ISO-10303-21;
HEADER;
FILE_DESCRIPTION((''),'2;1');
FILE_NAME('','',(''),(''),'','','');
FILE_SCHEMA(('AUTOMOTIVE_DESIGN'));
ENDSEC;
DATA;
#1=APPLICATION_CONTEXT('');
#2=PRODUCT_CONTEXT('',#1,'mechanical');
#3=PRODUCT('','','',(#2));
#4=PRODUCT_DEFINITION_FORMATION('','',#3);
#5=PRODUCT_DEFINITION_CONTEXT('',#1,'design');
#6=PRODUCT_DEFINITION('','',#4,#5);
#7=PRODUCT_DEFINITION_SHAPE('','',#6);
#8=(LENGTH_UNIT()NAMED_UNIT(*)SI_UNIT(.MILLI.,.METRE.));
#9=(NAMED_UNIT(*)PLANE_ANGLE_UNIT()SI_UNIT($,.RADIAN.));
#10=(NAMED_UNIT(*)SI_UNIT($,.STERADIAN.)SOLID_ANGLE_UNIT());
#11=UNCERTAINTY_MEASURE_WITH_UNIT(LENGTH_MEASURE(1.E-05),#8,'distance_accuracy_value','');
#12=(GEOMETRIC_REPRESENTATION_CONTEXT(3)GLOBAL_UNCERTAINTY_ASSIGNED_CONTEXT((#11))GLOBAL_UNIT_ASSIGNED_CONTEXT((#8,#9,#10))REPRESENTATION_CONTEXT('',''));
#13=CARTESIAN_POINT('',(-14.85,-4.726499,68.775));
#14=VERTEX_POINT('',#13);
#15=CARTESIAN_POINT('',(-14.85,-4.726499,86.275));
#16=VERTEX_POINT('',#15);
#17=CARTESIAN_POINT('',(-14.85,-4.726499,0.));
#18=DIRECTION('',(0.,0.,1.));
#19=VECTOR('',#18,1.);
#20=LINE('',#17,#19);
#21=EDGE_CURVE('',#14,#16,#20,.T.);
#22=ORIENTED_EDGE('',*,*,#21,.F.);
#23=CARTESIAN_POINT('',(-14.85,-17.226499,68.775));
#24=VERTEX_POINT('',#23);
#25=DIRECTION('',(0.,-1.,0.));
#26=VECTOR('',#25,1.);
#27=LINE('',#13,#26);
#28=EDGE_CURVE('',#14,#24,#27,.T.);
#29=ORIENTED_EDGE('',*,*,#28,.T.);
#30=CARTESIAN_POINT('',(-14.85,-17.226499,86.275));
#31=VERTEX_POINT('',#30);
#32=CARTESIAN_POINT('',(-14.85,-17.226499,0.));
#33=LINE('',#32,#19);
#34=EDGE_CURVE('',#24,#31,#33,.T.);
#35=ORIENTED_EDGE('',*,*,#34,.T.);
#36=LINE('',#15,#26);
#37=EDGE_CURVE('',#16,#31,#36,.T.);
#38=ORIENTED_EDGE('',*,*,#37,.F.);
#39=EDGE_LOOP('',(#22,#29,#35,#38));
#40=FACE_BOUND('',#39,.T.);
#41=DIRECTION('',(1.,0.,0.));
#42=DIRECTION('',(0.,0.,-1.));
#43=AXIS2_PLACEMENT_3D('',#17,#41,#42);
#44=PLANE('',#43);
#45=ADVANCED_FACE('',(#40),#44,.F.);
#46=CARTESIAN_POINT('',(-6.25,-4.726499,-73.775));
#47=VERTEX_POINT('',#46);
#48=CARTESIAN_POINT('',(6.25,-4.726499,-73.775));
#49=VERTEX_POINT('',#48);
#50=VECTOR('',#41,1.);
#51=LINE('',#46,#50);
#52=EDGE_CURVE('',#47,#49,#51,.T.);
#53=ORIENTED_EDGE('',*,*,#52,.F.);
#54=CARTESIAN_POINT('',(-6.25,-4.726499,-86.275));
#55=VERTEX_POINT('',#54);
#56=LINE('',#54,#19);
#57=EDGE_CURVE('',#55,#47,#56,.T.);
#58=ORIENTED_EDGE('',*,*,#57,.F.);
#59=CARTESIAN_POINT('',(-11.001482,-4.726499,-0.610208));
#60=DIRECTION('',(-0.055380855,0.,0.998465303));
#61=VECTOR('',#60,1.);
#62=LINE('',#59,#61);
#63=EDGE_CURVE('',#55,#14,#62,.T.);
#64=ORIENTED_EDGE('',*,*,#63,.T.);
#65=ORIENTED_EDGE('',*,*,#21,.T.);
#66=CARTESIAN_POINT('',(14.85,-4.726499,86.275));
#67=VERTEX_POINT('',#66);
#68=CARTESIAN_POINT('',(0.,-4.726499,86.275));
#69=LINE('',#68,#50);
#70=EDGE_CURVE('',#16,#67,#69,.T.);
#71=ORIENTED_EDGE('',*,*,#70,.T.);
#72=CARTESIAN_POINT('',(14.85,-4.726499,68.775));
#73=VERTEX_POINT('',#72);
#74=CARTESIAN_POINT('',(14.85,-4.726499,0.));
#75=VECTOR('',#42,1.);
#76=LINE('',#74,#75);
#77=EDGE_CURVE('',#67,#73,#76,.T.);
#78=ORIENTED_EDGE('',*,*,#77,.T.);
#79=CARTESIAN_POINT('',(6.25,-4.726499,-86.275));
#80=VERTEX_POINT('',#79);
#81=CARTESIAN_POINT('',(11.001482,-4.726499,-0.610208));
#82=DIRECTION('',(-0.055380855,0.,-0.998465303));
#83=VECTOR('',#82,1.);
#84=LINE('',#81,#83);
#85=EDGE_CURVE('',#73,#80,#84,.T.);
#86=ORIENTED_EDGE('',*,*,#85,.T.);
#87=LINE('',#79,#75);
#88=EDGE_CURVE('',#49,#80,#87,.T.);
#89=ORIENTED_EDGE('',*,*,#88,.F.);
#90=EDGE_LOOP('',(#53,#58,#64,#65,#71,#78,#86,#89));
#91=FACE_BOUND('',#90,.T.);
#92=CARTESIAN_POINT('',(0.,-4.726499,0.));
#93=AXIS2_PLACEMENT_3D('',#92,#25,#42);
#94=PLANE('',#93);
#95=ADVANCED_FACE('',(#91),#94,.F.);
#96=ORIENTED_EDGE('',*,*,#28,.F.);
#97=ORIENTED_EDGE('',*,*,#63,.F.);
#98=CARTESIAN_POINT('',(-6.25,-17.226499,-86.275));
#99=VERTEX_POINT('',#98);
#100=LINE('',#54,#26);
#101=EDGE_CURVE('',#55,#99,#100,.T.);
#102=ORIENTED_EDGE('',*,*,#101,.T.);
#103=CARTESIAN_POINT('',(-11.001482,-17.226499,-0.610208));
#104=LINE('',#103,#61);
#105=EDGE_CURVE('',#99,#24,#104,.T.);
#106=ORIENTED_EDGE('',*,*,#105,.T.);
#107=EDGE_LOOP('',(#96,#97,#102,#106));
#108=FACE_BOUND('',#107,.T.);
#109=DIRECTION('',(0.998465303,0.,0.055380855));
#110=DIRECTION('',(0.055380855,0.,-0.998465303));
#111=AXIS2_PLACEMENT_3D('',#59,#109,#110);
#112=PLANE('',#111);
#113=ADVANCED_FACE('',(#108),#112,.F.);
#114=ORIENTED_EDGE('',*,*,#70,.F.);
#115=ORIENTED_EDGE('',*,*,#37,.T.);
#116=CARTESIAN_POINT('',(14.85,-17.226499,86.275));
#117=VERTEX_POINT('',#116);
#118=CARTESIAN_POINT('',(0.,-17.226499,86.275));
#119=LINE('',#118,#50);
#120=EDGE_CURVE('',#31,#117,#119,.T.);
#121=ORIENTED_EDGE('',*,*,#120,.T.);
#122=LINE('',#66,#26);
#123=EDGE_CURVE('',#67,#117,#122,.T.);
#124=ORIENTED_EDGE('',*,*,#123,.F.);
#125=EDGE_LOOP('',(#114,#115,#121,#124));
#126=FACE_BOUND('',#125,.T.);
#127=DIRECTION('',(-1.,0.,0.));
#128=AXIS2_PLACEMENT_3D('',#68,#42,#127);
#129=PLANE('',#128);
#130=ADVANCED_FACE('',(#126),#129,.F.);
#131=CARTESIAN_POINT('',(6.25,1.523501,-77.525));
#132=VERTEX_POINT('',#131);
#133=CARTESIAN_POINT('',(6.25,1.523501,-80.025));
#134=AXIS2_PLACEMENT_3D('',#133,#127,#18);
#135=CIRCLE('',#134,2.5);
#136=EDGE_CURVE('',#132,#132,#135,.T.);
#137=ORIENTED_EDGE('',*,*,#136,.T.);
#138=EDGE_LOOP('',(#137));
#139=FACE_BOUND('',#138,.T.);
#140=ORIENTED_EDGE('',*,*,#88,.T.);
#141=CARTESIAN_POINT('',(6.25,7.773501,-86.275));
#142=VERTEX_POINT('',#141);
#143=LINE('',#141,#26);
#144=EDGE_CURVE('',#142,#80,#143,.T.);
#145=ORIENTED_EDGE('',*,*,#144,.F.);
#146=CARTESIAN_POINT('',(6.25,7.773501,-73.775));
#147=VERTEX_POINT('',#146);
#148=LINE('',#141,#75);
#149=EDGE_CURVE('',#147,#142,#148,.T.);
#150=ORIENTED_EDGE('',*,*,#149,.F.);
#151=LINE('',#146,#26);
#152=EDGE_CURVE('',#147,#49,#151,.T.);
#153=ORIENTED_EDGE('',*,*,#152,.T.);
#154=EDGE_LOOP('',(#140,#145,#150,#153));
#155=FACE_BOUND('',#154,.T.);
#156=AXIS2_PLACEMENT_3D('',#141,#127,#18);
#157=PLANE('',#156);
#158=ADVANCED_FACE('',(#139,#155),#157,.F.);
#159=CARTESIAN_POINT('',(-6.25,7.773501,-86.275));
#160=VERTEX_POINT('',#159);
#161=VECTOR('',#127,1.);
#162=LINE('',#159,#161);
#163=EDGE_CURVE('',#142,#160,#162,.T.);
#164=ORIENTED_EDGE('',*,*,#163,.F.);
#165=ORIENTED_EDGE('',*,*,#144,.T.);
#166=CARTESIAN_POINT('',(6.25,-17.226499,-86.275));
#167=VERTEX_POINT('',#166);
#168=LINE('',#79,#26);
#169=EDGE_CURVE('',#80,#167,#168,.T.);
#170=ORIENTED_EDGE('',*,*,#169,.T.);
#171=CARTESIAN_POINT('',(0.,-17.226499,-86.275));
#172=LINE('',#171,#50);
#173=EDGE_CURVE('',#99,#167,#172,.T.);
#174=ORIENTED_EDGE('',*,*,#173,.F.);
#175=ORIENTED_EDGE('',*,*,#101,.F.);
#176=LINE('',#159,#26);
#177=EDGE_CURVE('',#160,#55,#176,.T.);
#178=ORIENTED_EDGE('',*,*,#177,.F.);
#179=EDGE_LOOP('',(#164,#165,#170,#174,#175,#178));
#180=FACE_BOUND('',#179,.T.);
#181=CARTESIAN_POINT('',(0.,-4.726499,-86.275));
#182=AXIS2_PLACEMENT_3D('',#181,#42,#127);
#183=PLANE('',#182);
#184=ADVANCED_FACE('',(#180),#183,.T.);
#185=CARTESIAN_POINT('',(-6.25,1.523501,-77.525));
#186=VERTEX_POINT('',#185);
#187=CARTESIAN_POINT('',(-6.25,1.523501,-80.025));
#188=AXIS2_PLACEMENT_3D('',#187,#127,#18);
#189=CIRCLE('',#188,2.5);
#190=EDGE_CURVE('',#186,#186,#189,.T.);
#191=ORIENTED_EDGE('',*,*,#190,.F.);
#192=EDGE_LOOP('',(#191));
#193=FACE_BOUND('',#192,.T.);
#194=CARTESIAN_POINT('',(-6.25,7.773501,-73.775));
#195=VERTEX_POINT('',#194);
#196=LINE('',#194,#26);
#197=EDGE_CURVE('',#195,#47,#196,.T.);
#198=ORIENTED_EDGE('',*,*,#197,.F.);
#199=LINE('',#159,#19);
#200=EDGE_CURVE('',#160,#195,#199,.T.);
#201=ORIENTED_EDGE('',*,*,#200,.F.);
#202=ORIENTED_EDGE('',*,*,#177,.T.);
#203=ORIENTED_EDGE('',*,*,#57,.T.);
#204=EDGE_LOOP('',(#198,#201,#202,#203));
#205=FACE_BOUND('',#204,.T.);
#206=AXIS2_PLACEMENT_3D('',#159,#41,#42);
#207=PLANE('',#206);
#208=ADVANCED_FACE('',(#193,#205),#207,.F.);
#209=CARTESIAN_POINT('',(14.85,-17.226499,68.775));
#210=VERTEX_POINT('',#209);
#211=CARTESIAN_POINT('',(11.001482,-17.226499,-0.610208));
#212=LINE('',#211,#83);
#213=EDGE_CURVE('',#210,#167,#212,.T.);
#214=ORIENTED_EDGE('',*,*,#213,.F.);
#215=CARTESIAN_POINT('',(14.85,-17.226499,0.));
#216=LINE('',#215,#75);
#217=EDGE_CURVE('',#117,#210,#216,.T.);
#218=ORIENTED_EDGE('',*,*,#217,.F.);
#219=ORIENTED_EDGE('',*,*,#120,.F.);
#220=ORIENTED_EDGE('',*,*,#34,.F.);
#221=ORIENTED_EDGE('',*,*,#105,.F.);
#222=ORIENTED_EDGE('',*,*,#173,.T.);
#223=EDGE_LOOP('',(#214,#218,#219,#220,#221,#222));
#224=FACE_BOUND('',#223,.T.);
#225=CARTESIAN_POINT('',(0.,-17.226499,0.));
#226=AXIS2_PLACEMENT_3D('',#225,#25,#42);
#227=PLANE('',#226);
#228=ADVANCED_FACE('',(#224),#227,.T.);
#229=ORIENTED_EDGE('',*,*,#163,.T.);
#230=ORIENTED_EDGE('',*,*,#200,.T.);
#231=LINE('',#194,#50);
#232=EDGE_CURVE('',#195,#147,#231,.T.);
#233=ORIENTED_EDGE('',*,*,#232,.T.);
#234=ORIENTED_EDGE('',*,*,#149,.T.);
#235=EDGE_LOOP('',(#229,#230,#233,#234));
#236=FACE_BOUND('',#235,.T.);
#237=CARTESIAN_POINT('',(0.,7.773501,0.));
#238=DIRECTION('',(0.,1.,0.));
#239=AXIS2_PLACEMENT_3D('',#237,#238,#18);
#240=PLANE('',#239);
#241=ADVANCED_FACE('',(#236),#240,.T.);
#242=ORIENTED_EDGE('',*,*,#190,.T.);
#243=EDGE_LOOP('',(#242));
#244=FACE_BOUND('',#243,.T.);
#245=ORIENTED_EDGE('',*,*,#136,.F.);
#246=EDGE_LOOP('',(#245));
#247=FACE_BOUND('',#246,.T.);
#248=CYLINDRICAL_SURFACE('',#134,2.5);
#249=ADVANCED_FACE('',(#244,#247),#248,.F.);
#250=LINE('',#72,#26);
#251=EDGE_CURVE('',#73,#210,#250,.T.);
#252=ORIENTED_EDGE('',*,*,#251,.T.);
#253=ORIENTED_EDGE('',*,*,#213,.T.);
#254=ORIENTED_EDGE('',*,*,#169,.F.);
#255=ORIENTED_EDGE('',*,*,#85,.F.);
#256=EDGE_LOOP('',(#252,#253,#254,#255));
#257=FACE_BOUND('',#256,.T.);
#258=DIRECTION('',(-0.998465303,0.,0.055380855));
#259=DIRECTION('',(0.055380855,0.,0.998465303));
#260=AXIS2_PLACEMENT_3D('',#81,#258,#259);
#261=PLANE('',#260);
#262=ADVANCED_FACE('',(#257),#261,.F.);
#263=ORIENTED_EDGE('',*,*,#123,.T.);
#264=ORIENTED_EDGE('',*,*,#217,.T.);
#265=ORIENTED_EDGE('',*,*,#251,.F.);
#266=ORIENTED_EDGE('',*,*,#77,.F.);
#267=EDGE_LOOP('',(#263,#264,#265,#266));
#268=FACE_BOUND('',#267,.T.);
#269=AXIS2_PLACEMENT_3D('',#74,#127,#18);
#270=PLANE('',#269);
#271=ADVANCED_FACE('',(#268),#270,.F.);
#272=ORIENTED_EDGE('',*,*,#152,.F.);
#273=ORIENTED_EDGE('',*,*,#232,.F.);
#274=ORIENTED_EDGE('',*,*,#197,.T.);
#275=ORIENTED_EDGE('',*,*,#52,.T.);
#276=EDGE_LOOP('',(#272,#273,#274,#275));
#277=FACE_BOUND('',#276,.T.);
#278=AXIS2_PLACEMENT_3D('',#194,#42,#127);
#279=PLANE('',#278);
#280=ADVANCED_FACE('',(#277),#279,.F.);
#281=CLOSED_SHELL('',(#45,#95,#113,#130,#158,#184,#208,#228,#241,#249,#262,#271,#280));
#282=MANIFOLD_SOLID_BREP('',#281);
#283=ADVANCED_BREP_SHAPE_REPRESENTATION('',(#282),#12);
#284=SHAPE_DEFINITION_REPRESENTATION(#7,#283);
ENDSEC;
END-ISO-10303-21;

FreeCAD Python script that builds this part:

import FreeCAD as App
import Part
import Sketcher
from FreeCAD import Vector
Q = App.Units.Quantity


def add_polygon(sketch, points):
    """Adds a closed chain of lines whose ends are joined by coincident constraints."""
    first, n = sketch.GeometryCount, len(points)
    for a, b in zip(points, points[1:] + points[:1]):
        sketch.addGeometry(Part.LineSegment(App.Vector(*a, 0), App.Vector(*b, 0)), False)
    for i in range(n):
        sketch.addConstraint(Sketcher.Constraint("Coincident", first + i, 2, first + (i + 1) % n, 1))

doc = App.newDocument("Part")
body = doc.addObject("PartDesign::Body", "Body")

sketch1 = doc.addObject("Sketcher::SketchObject", "Sketch")
body.addObject(sketch1)
sketch1.AttachmentSupport = (doc.XZ_Plane, [""])
sketch1.MapMode = "FlatFace"
add_polygon(sketch1, [(-110, -110), (-110, 110), (110, 110), (110, -110)])
sketch1.addConstraint([
    Sketcher.Constraint("Vertical", 0),
    Sketcher.Constraint("Horizontal", 1),
    Sketcher.Constraint("Vertical", 2),
    Sketcher.Constraint("Horizontal", 3),
    Sketcher.Constraint("Symmetric", 0, 2, 2, 2, -1, 1),
    Sketcher.Constraint("Equal", 3, 0),
    Sketcher.Constraint("DistanceX", 1, 1, 1, 2, Q("220 mm")),
])
pad1 = doc.addObject("PartDesign::Pad", "Pad")
body.addObject(pad1)
pad1.Profile = sketch1
pad1.Length = 10
pad1.Reversed = True

sketch2 = doc.addObject("Sketcher::SketchObject", "Sketch001")
body.addObject(sketch2)
sketch2.AttachmentSupport = (doc.XZ_Plane, [""])
sketch2.MapMode = "FlatFace"
sketch2.AttachmentOffset = App.Placement(Vector(0, 0, -10), App.Rotation())
add_polygon(sketch2, [(0, 110), (-110, -110), (-110, 110)])
add_polygon(sketch2, [(110, -110), (0, 110), (110, 110)])
sketch2.addConstraint([
    Sketcher.Constraint("Vertical", 1),
    Sketcher.Constraint("Horizontal", 2),
    Sketcher.Constraint("Horizontal", 4),
    Sketcher.Constraint("Vertical", 5),
    Sketcher.Constraint("Coincident", 3, 2, 2, 2),
    Sketcher.Constraint("Symmetric", 0, 2, 4, 2, -1, 1),
    Sketcher.Constraint("PointOnObject", 2, 2, -2),
    Sketcher.Constraint("Horizontal", 0, 2, 5, 2),
    Sketcher.Constraint("DistanceX", 2, 1, 2, 2, Q("110 mm")),
    Sketcher.Constraint("DistanceY", 1, 1, 1, 2, Q("220 mm")),
])
pocket1 = doc.addObject("PartDesign::Pocket", "Pocket")
body.addObject(pocket1)
pocket1.Profile = sketch2
pocket1.Length = 10
pocket1.Reversed = True

sketch3 = doc.addObject("Sketcher::SketchObject", "Sketch002")
body.addObject(sketch3)
sketch3.AttachmentSupport = (doc.XZ_Plane, [""])
sketch3.MapMode = "FlatFace"
sketch3.AttachmentOffset = App.Placement(Vector(0, 0, -10), App.Rotation())
add_polygon(sketch3, [(110, -110), (-110, -110), (0, 110)])
sketch3.addConstraint([
    Sketcher.Constraint("Horizontal", 0),
    Sketcher.Constraint("PointOnObject", 1, 2, -2),
    Sketcher.Constraint("Equal", 1, 2),
    Sketcher.Constraint("DistanceX", 0, 2, 0, 1, Q("220 mm")),
    Sketcher.Constraint("DistanceY", 0, 2, -1, 1, Q("110 mm")),
    Sketcher.Constraint("DistanceY", -1, 1, 1, 2, Q("110 mm")),
])
pocket2 = doc.addObject("PartDesign::Pocket", "Pocket001")
body.addObject(pocket2)
pocket2.Profile = sketch3
pocket2.Length = 25
pocket2.Reversed = True
body2 = doc.addObject("PartDesign::Body", "Body001")
body2.AllowCompound = True

sketch4 = doc.addObject("Sketcher::SketchObject", "Sketch003")
body2.addObject(sketch4)
sketch4.AttachmentSupport = (doc.getObject("XZ_Plane001"), [""])
sketch4.MapMode = "FlatFace"
add_polygon(sketch4, [(-225, 225), (-225, -225), (225, -225), (225, 225)])
add_polygon(sketch4, [(200, -200), (-200, -200), (-200, 200), (200, 200)])
sketch4.addConstraint([
    Sketcher.Constraint("Vertical", 0),
    Sketcher.Constraint("Horizontal", 1),
    Sketcher.Constraint("Vertical", 2),
    Sketcher.Constraint("Horizontal", 3),
    Sketcher.Constraint("Horizontal", 4),
    Sketcher.Constraint("Vertical", 5),
    Sketcher.Constraint("Horizontal", 6),
    Sketcher.Constraint("Vertical", 7),
    Sketcher.Constraint("Symmetric", 0, 2, 2, 2, -1, 1),
    Sketcher.Constraint("Symmetric", 4, 2, 6, 2, -1, 1),
    Sketcher.Constraint("Equal", 3, 0),
    Sketcher.Constraint("Equal", 6, 5),
    Sketcher.Constraint("DistanceX", 1, 1, 1, 2, Q("450 mm")),
    Sketcher.Constraint("DistanceX", 4, 2, 4, 1, Q("400 mm")),
])
pad2 = doc.addObject("PartDesign::Pad", "Pad001")
body2.addObject(pad2)
pad2.Profile = sketch4
pad2.Length = 25
pad2.Reversed = True

sketch5 = doc.addObject("Sketcher::SketchObject", "Sketch004")
body2.addObject(sketch5)
sketch5.AttachmentSupport = (doc.getObject("XZ_Plane001"), [""])
sketch5.MapMode = "FlatFace"
sketch5.AttachmentOffset = App.Placement(Vector(0, 0, -25), App.Rotation())
add_polygon(sketch5, [(-225, -200), (225, -200), (225, -225), (-225, -225)])
sketch5.addConstraint([
    Sketcher.Constraint("Horizontal", 0),
    Sketcher.Constraint("Vertical", 1),
    Sketcher.Constraint("Horizontal", 2),
    Sketcher.Constraint("Vertical", 3),
    Sketcher.Constraint("DistanceX", 0, 1, 0, 2, Q("450 mm")),
    Sketcher.Constraint("DistanceY", 1, 2, 1, 1, Q("25 mm")),
    Sketcher.Constraint("DistanceX", -1, 1, 0, 2, Q("225 mm")),
    Sketcher.Constraint("DistanceY", 0, 2, -1, 1, Q("200 mm")),
])
pocket3 = doc.addObject("PartDesign::Pocket", "Pocket002")
body2.addObject(pocket3)
pocket3.Profile = sketch5
pocket3.Length = 25
pocket3.Reversed = True

sketch6 = doc.addObject("Sketcher::SketchObject", "Sketch005")
body2.addObject(sketch6)
sketch6.AttachmentSupport = (doc.getObject("XZ_Plane001"), [""])
sketch6.MapMode = "FlatFace"
sketch6.AttachmentOffset = App.Placement(Vector(0, 0, -25), App.Rotation())
add_polygon(sketch6, [(-225, -200), (-225, -150), (225, -150), (225, -200)])
sketch6.addConstraint([
    Sketcher.Constraint("Vertical", 0),
    Sketcher.Constraint("Horizontal", 1),
    Sketcher.Constraint("Vertical", 2),
    Sketcher.Constraint("Horizontal", 3),
    Sketcher.Constraint("DistanceX", 1, 1, 1, 2, Q("450 mm")),
    Sketcher.Constraint("DistanceY", 0, 1, 0, 2, Q("50 mm")),
    Sketcher.Constraint("DistanceX", 0, 2, -1, 1, Q("225 mm")),
    Sketcher.Constraint("DistanceY", 0, 2, -1, 1, Q("150 mm")),
])
pocket4 = doc.addObject("PartDesign::Pocket", "Pocket003")
body2.addObject(pocket4)
pocket4.Profile = sketch6
pocket4.Length = 25
pocket4.Reversed = True

sketch7 = doc.addObject("Sketcher::SketchObject", "Sketch006")
body2.addObject(sketch7)
sketch7.AttachmentSupport = (doc.getObject("XZ_Plane001"), [""])
sketch7.MapMode = "FlatFace"
sketch7.AttachmentOffset = App.Placement(Vector(0, 0, -25), App.Rotation())
add_polygon(sketch7, [(-225, -150), (-225, -110), (225, -110), (225, -150)])
sketch7.addConstraint([
    Sketcher.Constraint("Vertical", 0),
    Sketcher.Constraint("Horizontal", 1),
    Sketcher.Constraint("Vertical", 2),
    Sketcher.Constraint("Horizontal", 3),
    Sketcher.Constraint("DistanceX", 1, 1, 1, 2, Q("450 mm")),
    Sketcher.Constraint("DistanceY", 0, 1, 0, 2, Q("40 mm")),
    Sketcher.Constraint("DistanceX", 0, 2, -1, 1, Q("225 mm")),
    Sketcher.Constraint("DistanceY", 0, 2, -1, 1, Q("110 mm")),
])
pocket5 = doc.addObject("PartDesign::Pocket", "Pocket004")
body2.addObject(pocket5)
pocket5.Profile = sketch7
pocket5.Length = 25
pocket5.Reversed = True

sketch8 = doc.addObject("Sketcher::SketchObject", "Sketch007")
body2.addObject(sketch8)
sketch8.AttachmentSupport = (doc.getObject("XY_Plane001"), [""])
sketch8.MapMode = "FlatFace"
sketch8.AttachmentOffset = App.Placement(Vector(0, 0, -110), App.Rotation())
add_polygon(sketch8, [(-200, 25), (-200, 0), (-225, 0), (-225, 25)])
add_polygon(sketch8, [(225, 25), (225, 0), (200, 0), (200, 25)])
sketch8.addConstraint([
    Sketcher.Constraint("Vertical", 0),
    Sketcher.Constraint("Horizontal", 1),
    Sketcher.Constraint("Vertical", 2),
    Sketcher.Constraint("Horizontal", 3),
    Sketcher.Constraint("Vertical", 4),
    Sketcher.Constraint("Horizontal", 5),
    Sketcher.Constraint("Vertical", 6),
    Sketcher.Constraint("Horizontal", 7),
    Sketcher.Constraint("Symmetric", 1, 2, 4, 2, -1, 1),
    Sketcher.Constraint("Symmetric", 0, 2, 5, 2, -2),
    Sketcher.Constraint("Horizontal", 3, 2, 6, 2),
    Sketcher.Constraint("Equal", 7, 0),
    Sketcher.Constraint("DistanceX", 1, 2, 1, 1, Q("25 mm")),
    Sketcher.Constraint("DistanceX", 0, 2, -1, 1, Q("200 mm")),
])
pad3 = doc.addObject("PartDesign::Pad", "Pad002")
body2.addObject(pad3)
pad3.Profile = sketch8
pad3.Length = 25
pad3.Reversed = True

sketch9 = doc.addObject("Sketcher::SketchObject", "Sketch008")
body2.addObject(sketch9)
sketch9.AttachmentSupport = (doc.getObject("YZ_Plane001"), [""])
sketch9.MapMode = "FlatFace"
sketch9.AttachmentOffset = App.Placement(Vector(0, 0, -200), App.Rotation())
add_polygon(sketch9, [(25, -110), (0, -110), (0, -135), (25, -135)])
sketch9.addConstraint([
    Sketcher.Constraint("Horizontal", 0),
    Sketcher.Constraint("Vertical", 1),
    Sketcher.Constraint("Horizontal", 2),
    Sketcher.Constraint("Vertical", 3),
    Sketcher.Constraint("PointOnObject", 0, 2, -2),
    Sketcher.Constraint("Equal", 2, 1),
    Sketcher.Constraint("DistanceX", 0, 2, 0, 1, Q("25 mm")),
    Sketcher.Constraint("DistanceY", 0, 2, -1, 1, Q("110 mm")),
])
pad4 = doc.addObject("PartDesign::Pad", "Pad003")
body2.addObject(pad4)
pad4.Profile = sketch9
pad4.Length = 25

sketch10 = doc.addObject("Sketcher::SketchObject", "Sketch009")
body2.addObject(sketch10)
sketch10.AttachmentSupport = (doc.getObject("YZ_Plane001"), [""])
sketch10.MapMode = "FlatFace"
sketch10.AttachmentOffset = App.Placement(Vector(0, 0, 200), App.Rotation())
add_polygon(sketch10, [(25, -135), (0, -135), (0, -110), (25, -110)])
sketch10.addConstraint([
    Sketcher.Constraint("Horizontal", 0),
    Sketcher.Constraint("Vertical", 1),
    Sketcher.Constraint("Horizontal", 2),
    Sketcher.Constraint("Vertical", 3),
    Sketcher.Constraint("PointOnObject", 0, 2, -2),
    Sketcher.Constraint("Equal", 2, 1),
    Sketcher.Constraint("DistanceX", 0, 2, 0, 1, Q("25 mm")),
    Sketcher.Constraint("DistanceY", 0, 2, -1, 1, Q("135 mm")),
])
pad5 = doc.addObject("PartDesign::Pad", "Pad004")
body2.addObject(pad5)
pad5.Profile = sketch10
pad5.Length = 25
pad5.Reversed = True

sketch11 = doc.addObject("Sketcher::SketchObject", "Sketch010")
body2.addObject(sketch11)
sketch11.AttachmentSupport = (doc.getObject("XZ_Plane001"), [""])
sketch11.MapMode = "FlatFace"
sketch11.AttachmentOffset = App.Placement(Vector(0, 0, -25), App.Rotation())
sketch11.addGeometry([
    Part.Circle(Vector(-187.5, -122.5, 0), Vector(0, 0, 1), 5),
    Part.Circle(Vector(187.5, -122.5, 0), Vector(0, 0, 1), 5),
], False)
sketch11.addConstraint([
    Sketcher.Constraint("Equal", 0, 1),
    Sketcher.Constraint("Symmetric", 0, 3, 1, 3, -2),
    Sketcher.Constraint("Diameter", 0, Q("10 mm")),
    Sketcher.Constraint("DistanceX", 0, 3, 1, 3, Q("375 mm")),
    Sketcher.Constraint("DistanceY", 0, 3, -1, 1, Q("122.5 mm")),
])
pocket6 = doc.addObject("PartDesign::Pocket", "Pocket005")
body2.addObject(pocket6)
pocket6.Profile = sketch11
pocket6.Length = 25
pocket6.Reversed = True

sketch12 = doc.addObject("Sketcher::SketchObject", "Sketch011")
body2.addObject(sketch12)
sketch12.AttachmentSupport = (doc.getObject("YZ_Plane001"), [""])
sketch12.MapMode = "FlatFace"
sketch12.AttachmentOffset = App.Placement(Vector(0, 0, -225), App.Rotation())
add_polygon(sketch12, [(-20, 225), (0, 225), (0, -135)])
add_polygon(sketch12, [(25, 225), (45, 225), (25, -135)])
sketch12.addConstraint([
    Sketcher.Constraint("Horizontal", 0),
    Sketcher.Constraint("Vertical", 1),
    Sketcher.Constraint("Horizontal", 3),
    Sketcher.Constraint("Vertical", 5),
    Sketcher.Constraint("PointOnObject", 0, 2, -2),
    Sketcher.Constraint("Horizontal", 2, 2, 3, 2),
    Sketcher.Constraint("Horizontal", 1, 2, 4, 2),
    Sketcher.Constraint("Equal", 0, 3),
    Sketcher.Constraint("DistanceX", 0, 1, 0, 2, Q("20 mm")),
    Sketcher.Constraint("DistanceY", 1, 2, 1, 1, Q("360 mm")),
    Sketcher.Constraint("DistanceY", -1, 1, 0, 2, Q("225 mm")),
    Sketcher.Constraint("DistanceX", -1, 1, 3, 2, Q("45 mm")),
])
pad6 = doc.addObject("PartDesign::Pad", "Pad005")
body2.addObject(pad6)
pad6.Profile = sketch12
pad6.Length = 25

sketch13 = doc.addObject("Sketcher::SketchObject", "Sketch012")
body2.addObject(sketch13)
sketch13.AttachmentSupport = (doc.getObject("YZ_Plane001"), [""])
sketch13.MapMode = "FlatFace"
sketch13.AttachmentOffset = App.Placement(Vector(0, 0, 225), App.Rotation())
add_polygon(sketch13, [(45, 225), (25, 225), (25, -135)])
add_polygon(sketch13, [(0, 225), (-20, 225), (0, -135)])
sketch13.addConstraint([
    Sketcher.Constraint("Horizontal", 0),
    Sketcher.Constraint("Vertical", 1),
    Sketcher.Constraint("Horizontal", 3),
    Sketcher.Constraint("Vertical", 5),
    Sketcher.Constraint("PointOnObject", 4, 2, -2),
    Sketcher.Constraint("Horizontal", 2, 2, 3, 2),
    Sketcher.Constraint("Horizontal", 1, 2, 4, 2),
    Sketcher.Constraint("Equal", 0, 3),
    Sketcher.Constraint("DistanceX", 0, 2, 0, 1, Q("20 mm")),
    Sketcher.Constraint("DistanceY", 1, 2, 1, 1, Q("360 mm")),
    Sketcher.Constraint("DistanceX", -1, 1, 0, 2, Q("25 mm")),
    Sketcher.Constraint("DistanceY", -1, 1, 0, 2, Q("225 mm")),
])
pad7 = doc.addObject("PartDesign::Pad", "Pad006")
body2.addObject(pad7)
pad7.Profile = sketch13
pad7.Length = 25
pad7.Reversed = True

sketch14 = doc.addObject("Sketcher::SketchObject", "Sketch013")
body2.addObject(sketch14)
sketch14.AttachmentSupport = (doc.getObject("YZ_Plane001"), [""])
sketch14.MapMode = "FlatFace"
sketch14.AttachmentOffset = App.Placement(Vector(0, 0, -225), App.Rotation())
add_polygon(sketch14, [(42.226499, 175.076982), (45, 225), (125, 225)])
add_polygon(sketch14, [(-100, 225), (-20, 225), (-17.226499, 175.076982)])
sketch14.addConstraint([
    Sketcher.Constraint("Horizontal", 1),
    Sketcher.Constraint("Horizontal", 3),
    Sketcher.Constraint("Horizontal", 1, 2, 3, 2),
    Sketcher.Constraint("Horizontal", 2, 2, 4, 2),
    Sketcher.Constraint("Equal", 1, 3),
    Sketcher.Constraint("Equal", 0, 4),
    Sketcher.Constraint("DistanceX", 1, 1, 1, 2, Q("80 mm")),
    Sketcher.Constraint("Distance", 0, Q("50 mm")),
    Sketcher.Constraint("DistanceX", -1, 1, 0, 2, Q("45 mm")),
    Sketcher.Constraint("DistanceY", -1, 1, 0, 2, Q("225 mm")),
    Sketcher.Constraint("DistanceX", 3, 2, -1, 1, Q("20 mm")),
    Sketcher.Constraint("DistanceX", 4, 2, 2, 2, Q("59.452998 mm")),
])
pad8 = doc.addObject("PartDesign::Pad", "Pad007")
body2.addObject(pad8)
pad8.Profile = sketch14
pad8.Length = 25

sketch15 = doc.addObject("Sketcher::SketchObject", "Sketch014")
body2.addObject(sketch15)
sketch15.AttachmentSupport = (doc.getObject("YZ_Plane001"), [""])
sketch15.MapMode = "FlatFace"
sketch15.AttachmentOffset = App.Placement(Vector(0, 0, 225), App.Rotation())
add_polygon(sketch15, [(125, 225), (45, 225), (42.226499, 175.076982)])
add_polygon(sketch15, [(-20, 225), (-100, 225), (-17.226499, 175.076982)])
sketch15.addConstraint([
    Sketcher.Constraint("Horizontal", 0),
    Sketcher.Constraint("Horizontal", 3),
    Sketcher.Constraint("Horizontal", 2, 2, 3, 2),
    Sketcher.Constraint("Horizontal", 1, 2, 4, 2),
    Sketcher.Constraint("Equal", 0, 3),
    Sketcher.Constraint("Equal", 2, 4),
    Sketcher.Constraint("DistanceX", 0, 2, 0, 1, Q("80 mm")),
    Sketcher.Constraint("Distance", 1, Q("50 mm")),
    Sketcher.Constraint("DistanceX", -1, 1, 0, 2, Q("45 mm")),
    Sketcher.Constraint("DistanceY", -1, 1, 0, 2, Q("225 mm")),
    Sketcher.Constraint("DistanceX", 3, 2, -1, 1, Q("100 mm")),
    Sketcher.Constraint("DistanceX", 4, 2, 1, 2, Q("59.452998 mm")),
])
pad9 = doc.addObject("PartDesign::Pad", "Pad008")
body2.addObject(pad9)
pad9.Profile = sketch15
pad9.Length = 25
pad9.Reversed = True

sketch16 = doc.addObject("Sketcher::SketchObject", "Sketch015")
body2.addObject(sketch16)
sketch16.AttachmentSupport = (doc.getObject("YZ_Plane001"), [""])
sketch16.MapMode = "FlatFace"
sketch16.AttachmentOffset = App.Placement(Vector(0, 0, -200), App.Rotation())
add_polygon(sketch16, [(25, 200), (125, 225), (25, 225)])
sketch16.addConstraint([
    Sketcher.Constraint("Horizontal", 1),
    Sketcher.Constraint("Vertical", 2),
    Sketcher.Constraint("DistanceX", 1, 2, 1, 1, Q("100 mm")),
    Sketcher.Constraint("DistanceY", 2, 2, 2, 1, Q("25 mm")),
    Sketcher.Constraint("DistanceX", -1, 1, 0, 2, Q("125 mm")),
    Sketcher.Constraint("DistanceY", -1, 1, 0, 2, Q("225 mm")),
])
pad10 = doc.addObject("PartDesign::Pad", "Pad009")
body2.addObject(pad10)
pad10.Profile = sketch16
pad10.Length = 400

sketch17 = doc.addObject("Sketcher::SketchObject", "Sketch016")
body2.addObject(sketch17)
sketch17.AttachmentSupport = (doc.getObject("YZ_Plane001"), [""])
sketch17.MapMode = "FlatFace"
sketch17.AttachmentOffset = App.Placement(Vector(0, 0, -200), App.Rotation())
add_polygon(sketch17, [(0, 225), (-100, 225), (0, 200)])
sketch17.addConstraint([
    Sketcher.Constraint("Horizontal", 0),
    Sketcher.Constraint("Vertical", 2),
    Sketcher.Constraint("PointOnObject", 1, 2, -2),
    Sketcher.Constraint("DistanceX", 0, 2, 0, 1, Q("100 mm")),
    Sketcher.Constraint("DistanceY", 2, 1, 2, 2, Q("25 mm")),
    Sketcher.Constraint("DistanceY", -1, 1, 0, 2, Q("225 mm")),
])
pad11 = doc.addObject("PartDesign::Pad", "Pad010")
body2.addObject(pad11)
pad11.Profile = sketch17
pad11.Length = 400

sketch18 = doc.addObject("Sketcher::SketchObject", "Sketch017")
body2.addObject(sketch18)
sketch18.AttachmentSupport = (doc.getObject("YZ_Plane001"), [""])
sketch18.MapMode = "FlatFace"
sketch18.AttachmentOffset = App.Placement(Vector(0, 0, -225), App.Rotation())
add_polygon(sketch18, [(42.226499, 175.076982), (-17.226499, 175.076982), (-100, 225), (125, 225)])
sketch18.addConstraint([
    Sketcher.Constraint("Horizontal", 0),
    Sketcher.Constraint("Horizontal", 2),
    Sketcher.Constraint("Equal", 1, 3),
    Sketcher.Constraint("DistanceX", 2, 1, 2, 2, Q("225 mm")),
    Sketcher.Constraint("DistanceX", 1, 2, -1, 1, Q("100 mm")),
    Sketcher.Constraint("DistanceY", -1, 1, 1, 2, Q("225 mm")),
    Sketcher.Constraint("DistanceX", 0, 2, 0, 1, Q("59.452998 mm")),
    Sketcher.Constraint("Distance", 1, Q("96.663127 mm")),
])
pocket7 = doc.addObject("PartDesign::Pocket", "Pocket006")
body2.addObject(pocket7)
pocket7.Profile = sketch18
pocket7.Length = 450
pocket7.Reversed = True

sketch19 = doc.addObject("Sketcher::SketchObject", "Sketch018")
body2.addObject(sketch19)
sketch19.AttachmentSupport = (doc.getObject("XY_Plane001"), [""])
sketch19.MapMode = "FlatFace"
sketch19.AttachmentOffset = App.Placement(Vector(0, 0, 175.076982), App.Rotation())
add_polygon(sketch19, [(-225, 42.226499), (-225, -17.226499), (-175, -17.226499), (-175, 42.226499)])
sketch19.addConstraint([
    Sketcher.Constraint("Vertical", 0),
    Sketcher.Constraint("Horizontal", 1),
    Sketcher.Constraint("Vertical", 2),
    Sketcher.Constraint("Horizontal", 3),
    Sketcher.Constraint("DistanceX", 1, 1, 1, 2, Q("50 mm")),
    Sketcher.Constraint("DistanceX", 0, 2, -1, 1, Q("225 mm")),
    Sketcher.Constraint("DistanceY", 0, 2, 0, 1, Q("59.452998 mm")),
    Sketcher.Constraint("DistanceY", 0, 2, -1, 1, Q("17.226499 mm")),
])
pocket8 = doc.addObject("PartDesign::Pocket", "Pocket007")
body2.addObject(pocket8)
pocket8.Profile = sketch19
pocket8.Length = 350

sketch20 = doc.addObject("Sketcher::SketchObject", "Sketch019")
body2.addObject(sketch20)
sketch20.AttachmentSupport = (doc.getObject("XY_Plane001"), [""])
sketch20.MapMode = "FlatFace"
sketch20.AttachmentOffset = App.Placement(Vector(0, 0, 175.076982), App.Rotation())
add_polygon(sketch20, [(200, 42.226499), (200, -17.226499), (225, -17.226499), (225, 42.226499)])
sketch20.addConstraint([
    Sketcher.Constraint("Vertical", 0),
    Sketcher.Constraint("Horizontal", 1),
    Sketcher.Constraint("Vertical", 2),
    Sketcher.Constraint("Horizontal", 3),
    Sketcher.Constraint("DistanceX", 1, 1, 1, 2, Q("25 mm")),
    Sketcher.Constraint("DistanceX", -1, 1, 0, 2, Q("200 mm")),
    Sketcher.Constraint("DistanceY", 0, 2, 0, 1, Q("59.452998 mm")),
    Sketcher.Constraint("DistanceY", 0, 2, -1, 1, Q("17.226499 mm")),
])
pad12 = doc.addObject("PartDesign::Pad", "Pad011")
body2.addObject(pad12)
pad12.Profile = sketch20
pad12.Length = 35

sketch21 = doc.addObject("Sketcher::SketchObject", "Sketch020")
body2.addObject(sketch21)
sketch21.AttachmentSupport = (doc.getObject("XY_Plane001"), [""])
sketch21.MapMode = "FlatFace"
sketch21.AttachmentOffset = App.Placement(Vector(0, 0, 210.076982), App.Rotation())
add_polygon(sketch21, [(153.254913, 71.136392), (153.254913, -48.979409), (269.438731, -48.979409), (269.438731, 71.136392)])
sketch21.addConstraint([
    Sketcher.Constraint("Vertical", 0),
    Sketcher.Constraint("Horizontal", 1),
    Sketcher.Constraint("Vertical", 2),
    Sketcher.Constraint("Horizontal", 3),
    Sketcher.Constraint("DistanceY", 0, 2, 0, 1, Q("120.115801 mm")),
    Sketcher.Constraint("DistanceX", 1, 1, 1, 2, Q("116.183818 mm")),
    Sketcher.Constraint("DistanceY", 0, 2, -1, 1, Q("48.979409 mm")),
    Sketcher.Constraint("DistanceX", -1, 1, 1, 2, Q("269.438731 mm")),
])
pocket9 = doc.addObject("PartDesign::Pocket", "Pocket008")
body2.addObject(pocket9)
pocket9.Profile = sketch21
pocket9.Length = 800
body3 = doc.addObject("PartDesign::Body", "Body002")

sketch22 = doc.addObject("Sketcher::SketchObject", "Sketch021")
body3.addObject(sketch22)
sketch22.AttachmentSupport = (doc.getObject("XZ_Plane002"), [""])
sketch22.MapMode = "FlatFace"
sketch22.AttachmentOffset = App.Placement(Vector(0, 0, 17.226499), App.Rotation())
add_polygon(sketch22, [(-6.25, -86.275), (6.25, -86.275), (14.85, 68.775), (14.85, 86.275), (-14.85, 86.275), (-14.85, 68.775)])
sketch22.addConstraint([
    Sketcher.Constraint("Horizontal", 0),
    Sketcher.Constraint("Vertical", 2),
    Sketcher.Constraint("Horizontal", 3),
    Sketcher.Constraint("Vertical", 4),
    Sketcher.Constraint("Symmetric", 1, 2, 4, 2, -2),
    Sketcher.Constraint("Equal", 1, 5),
    Sketcher.Constraint("DistanceX", 0, 1, 0, 2, Q("12.5 mm")),
    Sketcher.Constraint("DistanceX", 3, 2, 3, 1, Q("29.7 mm")),
    Sketcher.Constraint("DistanceY", 2, 1, 2, 2, Q("17.5 mm")),
    Sketcher.Constraint("DistanceY", 0, 2, 1, 2, Q("155.05 mm")),
    Sketcher.Constraint("DistanceY", 0, 2, -1, 1, Q("86.275 mm")),
])
pad13 = doc.addObject("PartDesign::Pad", "Pad012")
body3.addObject(pad13)
pad13.Profile = sketch22
pad13.Length = 12.5
pad13.Reversed = True

sketch23 = doc.addObject("Sketcher::SketchObject", "Sketch022")
body3.addObject(sketch23)
sketch23.AttachmentSupport = (doc.getObject("XZ_Plane002"), [""])
sketch23.MapMode = "FlatFace"
sketch23.AttachmentOffset = App.Placement(Vector(0, 0, 4.726499), App.Rotation())
add_polygon(sketch23, [(-6.25, -86.275), (-6.25, -73.775), (6.25, -73.775), (6.25, -86.275)])
sketch23.addConstraint([
    Sketcher.Constraint("Vertical", 0),
    Sketcher.Constraint("Horizontal", 1),
    Sketcher.Constraint("Vertical", 2),
    Sketcher.Constraint("Horizontal", 3),
    Sketcher.Constraint("Equal", 3, 0),
    Sketcher.Constraint("DistanceX", 1, 1, 1, 2, Q("12.5 mm")),
    Sketcher.Constraint("DistanceX", 0, 2, -1, 1, Q("6.25 mm")),
    Sketcher.Constraint("DistanceY", 0, 2, -1, 1, Q("73.775 mm")),
])
pad14 = doc.addObject("PartDesign::Pad", "Pad013")
body3.addObject(pad14)
pad14.Profile = sketch23
pad14.Length = 12.5
pad14.Reversed = True

sketch24 = doc.addObject("Sketcher::SketchObject", "Sketch023")
body3.addObject(sketch24)
sketch24.AttachmentSupport = (doc.getObject("YZ_Plane002"), [""])
sketch24.MapMode = "FlatFace"
sketch24.AttachmentOffset = App.Placement(Vector(0, 0, -6.25), App.Rotation())
sketch24.addGeometry(Part.Circle(Vector(1.523501, -80.025, 0), Vector(0, 0, 1), 2.5), False)
sketch24.addConstraint([
    Sketcher.Constraint("Diameter", 0, Q("5 mm")),
    Sketcher.Constraint("DistanceY", 0, 3, -1, 1, Q("80.025 mm")),
    Sketcher.Constraint("DistanceX", -1, 1, 0, 3, Q("1.523501 mm")),
])
pocket10 = doc.addObject("PartDesign::Pocket", "Pocket009")
body3.addObject(pocket10)
pocket10.Profile = sketch24
pocket10.Length = 12.5
pocket10.Reversed = True

doc.recompute()
